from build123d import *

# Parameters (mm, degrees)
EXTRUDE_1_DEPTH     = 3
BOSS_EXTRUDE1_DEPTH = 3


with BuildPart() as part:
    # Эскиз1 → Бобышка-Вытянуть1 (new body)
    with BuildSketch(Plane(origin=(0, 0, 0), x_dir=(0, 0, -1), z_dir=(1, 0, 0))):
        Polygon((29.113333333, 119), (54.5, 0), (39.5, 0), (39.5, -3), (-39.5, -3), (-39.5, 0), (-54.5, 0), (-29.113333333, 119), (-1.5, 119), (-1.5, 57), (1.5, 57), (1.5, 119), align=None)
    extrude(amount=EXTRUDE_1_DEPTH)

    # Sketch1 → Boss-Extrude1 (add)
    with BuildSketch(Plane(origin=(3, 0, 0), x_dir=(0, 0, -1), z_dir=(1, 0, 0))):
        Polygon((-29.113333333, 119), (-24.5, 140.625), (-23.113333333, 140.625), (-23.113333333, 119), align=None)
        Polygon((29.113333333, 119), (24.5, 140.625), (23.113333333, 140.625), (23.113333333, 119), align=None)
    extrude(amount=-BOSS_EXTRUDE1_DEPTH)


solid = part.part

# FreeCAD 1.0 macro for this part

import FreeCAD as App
import Part
import Sketcher
from FreeCAD import Vector


def add_polygon(sketch, points):
    """Adds a closed chain of lines whose ends are joined by coincident constraints."""
    first, n = sketch.GeometryCount, len(points)
    for a, b in zip(points, points[1:] + points[:1]):
        sketch.addGeometry(Part.LineSegment(App.Vector(*a, 0), App.Vector(*b, 0)), False)
    for i in range(n):
        sketch.addConstraint(Sketcher.Constraint("Coincident", first + i, 2, first + (i + 1) % n, 1))

doc = App.newDocument("Part")
body = doc.addObject("PartDesign::Body", "Body")

# Sketch on YZ plane
sketch1 = body.newObject("Sketcher::SketchObject", "Sketch")
sketch1.AttachmentSupport = (doc.getObject("YZ_Plane"), [""])
sketch1.MapMode = "FlatFace"
add_polygon(sketch1, [(0, -54.5), (119, -29.1), (119, -1.5), (57, -1.5), (57, 1.5), (119, 1.5), (119, 29.1), (0, 54.5), (0, 39.5), (-3, 39.5), (-3, -39.5), (0, -39.5)])  # lines 0-11
sketch1.addConstraint([
    Sketcher.Constraint("Vertical", 1),
    Sketcher.Constraint("Horizontal", 2),
    Sketcher.Constraint("Vertical", 3),
    Sketcher.Constraint("Horizontal", 4),
    Sketcher.Constraint("Vertical", 5),
    Sketcher.Constraint("Vertical", 7),
    Sketcher.Constraint("Horizontal", 8),
    Sketcher.Constraint("Vertical", 9),
    Sketcher.Constraint("Horizontal", 10),
    Sketcher.Constraint("Vertical", 11),
    Sketcher.Constraint("Symmetric", 7, 2, 10, 2, -1, 1),
    Sketcher.Constraint("Symmetric", 1, 2, 4, 2, -1),
    Sketcher.Constraint("Symmetric", 6, 2, 11, 2, -1),
    Sketcher.Constraint("Equal", 10, 3),
    Sketcher.Constraint("Equal", 1, 5),
    Sketcher.Constraint("DistanceX", 2, 2, 2, 1, 62.0),
    Sketcher.Constraint("DistanceX", 8, 2, 8, 1, 3.0),
    Sketcher.Constraint("DistanceY", 7, 2, 7, 1, 15.0),
    Sketcher.Constraint("DistanceY", 9, 2, 9, 1, 79.0),
    Sketcher.Constraint("DistanceX", -1, 1, 0, 2, 119.0),
    Sketcher.Constraint("DistanceY", 1, 1, 1, 2, 27.613333),
])
pad1 = body.newObject("PartDesign::Pad", "Pad")
pad1.Profile = sketch1
pad1.Length = 3

# Sketch on YZ plane
sketch2 = body.newObject("Sketcher::SketchObject", "Sketch001")
sketch2.AttachmentSupport = (doc.getObject("YZ_Plane"), [""])
sketch2.MapMode = "FlatFace"
sketch2.AttachmentOffset = App.Placement(Vector(0, 0, 3), App.Rotation())
add_polygon(sketch2, [(140.6, 24.5), (119, 29.1), (119, 23.1), (140.6, 23.1)])  # lines 0-3
add_polygon(sketch2, [(119, -29.1), (140.6, -24.5), (140.6, -23.1), (119, -23.1)])  # lines 4-7
sketch2.addConstraint([
    Sketcher.Constraint("Vertical", 1),
    Sketcher.Constraint("Horizontal", 2),
    Sketcher.Constraint("Vertical", 3),
    Sketcher.Constraint("Vertical", 5),
    Sketcher.Constraint("Horizontal", 6),
    Sketcher.Constraint("Vertical", 7),
    Sketcher.Constraint("Symmetric", 3, 2, 4, 2, -1),
    Sketcher.Constraint("Symmetric", 1, 2, 6, 2, -1),
    Sketcher.Constraint("Equal", 1, 7),
    Sketcher.Constraint("DistanceY", 1, 2, 1, 1, 6.0),
    Sketcher.Constraint("DistanceX", -1, 1, 0, 2, 119.0),
    Sketcher.Constraint("DistanceY", 4, 2, 3, 2, 49.0),
    Sketcher.Constraint("DistanceX", 2, 1, 2, 2, 21.625),
    Sketcher.Constraint("DistanceY", 3, 1, 3, 2, 1.386667),
])
pad2 = body.newObject("PartDesign::Pad", "Pad001")
pad2.Profile = sketch2
pad2.Length = 3
pad2.Reversed = True

doc.recompute()
